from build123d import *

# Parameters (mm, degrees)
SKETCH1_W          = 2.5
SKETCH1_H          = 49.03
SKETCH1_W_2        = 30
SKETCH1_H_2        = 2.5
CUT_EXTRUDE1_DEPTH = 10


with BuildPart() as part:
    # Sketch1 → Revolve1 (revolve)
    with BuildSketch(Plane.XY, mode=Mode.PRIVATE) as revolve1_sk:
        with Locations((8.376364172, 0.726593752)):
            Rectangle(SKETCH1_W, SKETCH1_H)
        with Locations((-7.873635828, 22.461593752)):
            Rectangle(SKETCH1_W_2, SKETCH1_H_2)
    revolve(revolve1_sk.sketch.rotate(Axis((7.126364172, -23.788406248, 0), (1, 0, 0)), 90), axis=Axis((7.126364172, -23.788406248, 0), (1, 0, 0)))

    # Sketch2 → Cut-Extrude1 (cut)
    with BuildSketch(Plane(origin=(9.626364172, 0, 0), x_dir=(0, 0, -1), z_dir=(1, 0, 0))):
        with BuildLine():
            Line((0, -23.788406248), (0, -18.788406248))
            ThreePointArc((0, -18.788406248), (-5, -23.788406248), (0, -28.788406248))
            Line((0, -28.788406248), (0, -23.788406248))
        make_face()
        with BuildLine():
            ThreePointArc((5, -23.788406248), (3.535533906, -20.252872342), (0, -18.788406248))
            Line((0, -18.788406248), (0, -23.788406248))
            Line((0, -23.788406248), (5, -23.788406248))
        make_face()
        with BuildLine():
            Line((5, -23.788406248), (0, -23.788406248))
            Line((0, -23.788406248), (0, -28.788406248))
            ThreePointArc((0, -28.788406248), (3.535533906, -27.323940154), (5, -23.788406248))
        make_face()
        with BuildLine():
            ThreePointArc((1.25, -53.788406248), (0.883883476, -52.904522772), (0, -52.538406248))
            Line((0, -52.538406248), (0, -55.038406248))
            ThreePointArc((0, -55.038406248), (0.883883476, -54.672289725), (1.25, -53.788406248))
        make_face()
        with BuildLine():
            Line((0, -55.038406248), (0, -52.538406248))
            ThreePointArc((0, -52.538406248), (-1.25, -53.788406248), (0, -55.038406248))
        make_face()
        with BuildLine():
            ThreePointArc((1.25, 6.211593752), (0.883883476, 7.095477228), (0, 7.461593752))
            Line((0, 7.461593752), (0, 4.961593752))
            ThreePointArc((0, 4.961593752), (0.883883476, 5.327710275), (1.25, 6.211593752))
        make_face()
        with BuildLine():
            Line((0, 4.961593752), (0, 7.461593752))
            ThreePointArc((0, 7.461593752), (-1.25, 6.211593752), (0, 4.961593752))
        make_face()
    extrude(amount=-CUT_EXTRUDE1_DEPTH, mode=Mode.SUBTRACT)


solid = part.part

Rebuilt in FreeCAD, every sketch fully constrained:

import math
import FreeCAD as App
import Part
import Sketcher


def add_polygon(sketch, points):
    """Adds a closed chain of lines whose ends are joined by coincident constraints."""
    first, n = sketch.GeometryCount, len(points)
    for a, b in zip(points, points[1:] + points[:1]):
        sketch.addGeometry(Part.LineSegment(App.Vector(*a, 0), App.Vector(*b, 0)), False)
    for i in range(n):
        sketch.addConstraint(Sketcher.Constraint("Coincident", first + i, 2, first + (i + 1) % n, 1))

doc = App.newDocument("Part")
body = doc.addObject("PartDesign::Body", "Body")

# Sketch on XY plane
sketch1 = body.newObject("Sketcher::SketchObject", "Sketch")
sketch1.AttachmentSupport = (doc.getObject("XY_Plane"), [""])
sketch1.MapMode = "FlatFace"
add_polygon(sketch1, [(7.1, 21.2), (7.1, -23.8), (9.6, -23.8), (9.6, 25.2), (7.1, 25.2), (7.1, 23.7), (-22.9, 23.7), (-22.9, 21.2)])  # lines 0-7
sketch1.addGeometry(Part.LineSegment(App.Vector(-22.9, -23.8, 0), App.Vector(9.6, -23.8, 0)), True)  # axis
sketch1.addConstraint([
    Sketcher.Constraint("Vertical", 0),
    Sketcher.Constraint("Horizontal", 1),
    Sketcher.Constraint("Vertical", 2),
    Sketcher.Constraint("Horizontal", 3),
    Sketcher.Constraint("Vertical", 4),
    Sketcher.Constraint("Horizontal", 5),
    Sketcher.Constraint("Vertical", 6),
    Sketcher.Constraint("Horizontal", 7),
    Sketcher.Constraint("Horizontal", 8),
    Sketcher.Constraint("Coincident", 8, 2, 1, 2),
    Sketcher.Constraint("Vertical", 0, 2, 3, 2),
    Sketcher.Constraint("Vertical", 6, 2, 8, 1),
    Sketcher.Constraint("Equal", 3, 6),
    Sketcher.Constraint("DistanceX", 5, 2, 5, 1, 30.0),
    Sketcher.Constraint("DistanceY", 0, 2, 0, 1, 45.0),
    Sketcher.Constraint("DistanceX", 1, 1, 1, 2, 2.5),
    Sketcher.Constraint("DistanceY", 2, 1, 2, 2, 49.03),
    Sketcher.Constraint("DistanceX", -1, 1, 0, 2, 7.126364),
    Sketcher.Constraint("DistanceY", 0, 2, -1, 1, 23.788406),
])
revolution = body.newObject("PartDesign::Revolution", "Revolution")
revolution.Profile = sketch1
revolution.ReferenceAxis = (sketch1, ["Axis0"])
revolution.Angle = 360

# Sketch on YZ plane
sketch2 = body.newObject("Sketcher::SketchObject", "Sketch001")
sketch2.AttachmentSupport = (doc.getObject("YZ_Plane"), [""])
sketch2.MapMode = "FlatFace"
sketch2.AttachmentOffset = App.Placement(App.Vector(0, 0, 9.626364), App.Rotation())
sketch2.addGeometry([
    Part.ArcOfCircle(Part.Circle(App.Vector(-23.8, 0, 0), App.Vector(0, 0, 1), 5), math.radians(180), math.radians(270)),  # 0
    Part.ArcOfCircle(Part.Circle(App.Vector(-23.8, 0, 0), App.Vector(0, 0, 1), 5), math.radians(-90), math.radians(0)),  # 1
    Part.ArcOfCircle(Part.Circle(App.Vector(-23.8, 0, 0), App.Vector(0, 0, 1), 5), math.radians(0), math.radians(180)),  # 2
    Part.ArcOfCircle(Part.Circle(App.Vector(-53.8, 0, 0), App.Vector(0, 0, 1), 1.3), math.radians(-90), math.radians(0)),  # 3
    Part.ArcOfCircle(Part.Circle(App.Vector(-53.8, 0, 0), App.Vector(0, 0, 1), 1.2), math.radians(0), math.radians(180)),  # 4
    Part.ArcOfCircle(Part.Circle(App.Vector(-53.8, 0, 0), App.Vector(0, 0, 1), 1.2), math.radians(180), math.radians(270)),  # 5
    Part.ArcOfCircle(Part.Circle(App.Vector(6.2, 0, 0), App.Vector(0, 0, 1), 1.3), math.radians(-90), math.radians(0)),  # 6
    Part.ArcOfCircle(Part.Circle(App.Vector(6.2, 0, 0), App.Vector(0, 0, 1), 1.2), math.radians(0), math.radians(180)),  # 7
    Part.ArcOfCircle(Part.Circle(App.Vector(6.2, 0, 0), App.Vector(0, 0, 1), 1.2), math.radians(180), math.radians(270)),  # 8
], False)
sketch2.addConstraint([
    Sketcher.Constraint("Tangent", 0, 2, 1, 1),
    Sketcher.Constraint("Tangent", 1, 2, 2, 1),
    Sketcher.Constraint("Tangent", 2, 2, 0, 1),
    Sketcher.Constraint("Tangent", 3, 2, 4, 1),
    Sketcher.Constraint("Tangent", 4, 2, 5, 1),
    Sketcher.Constraint("Tangent", 5, 2, 3, 1),
    Sketcher.Constraint("Tangent", 6, 2, 7, 1),
    Sketcher.Constraint("Tangent", 7, 2, 8, 1),
    Sketcher.Constraint("Tangent", 8, 2, 6, 1),
    Sketcher.Constraint("Equal", 5, 6),
    Sketcher.Constraint("PointOnObject", 0, 3, -1),
    Sketcher.Constraint("PointOnObject", 3, 3, -1),
    Sketcher.Constraint("PointOnObject", 6, 3, -1),
    Sketcher.Constraint("PointOnObject", 1, 2, -1),
    Sketcher.Constraint("PointOnObject", 2, 2, -1),
    Sketcher.Constraint("PointOnObject", 3, 2, -1),
    Sketcher.Constraint("PointOnObject", 4, 2, -1),
    Sketcher.Constraint("PointOnObject", 6, 2, -1),
    Sketcher.Constraint("PointOnObject", 7, 2, -1),
    Sketcher.Constraint("Vertical", 2, 3, 0, 2),
    Sketcher.Constraint("Vertical", 4, 3, 5, 2),
    Sketcher.Constraint("Vertical", 7, 3, 8, 2),
    Sketcher.Constraint("Radius", 0, 5.0),
    Sketcher.Constraint("Radius", 3, 1.25),
    Sketcher.Constraint("DistanceX", 3, 3, 0, 3, 30.0),
    Sketcher.Constraint("DistanceX", 0, 3, 6, 3, 30.0),
    Sketcher.Constraint("DistanceX", 0, 3, -1, 1, 23.788406),
])
pocket1 = body.newObject("PartDesign::Pocket", "Pocket")
pocket1.Profile = sketch2
pocket1.Length = 10

doc.recompute()
